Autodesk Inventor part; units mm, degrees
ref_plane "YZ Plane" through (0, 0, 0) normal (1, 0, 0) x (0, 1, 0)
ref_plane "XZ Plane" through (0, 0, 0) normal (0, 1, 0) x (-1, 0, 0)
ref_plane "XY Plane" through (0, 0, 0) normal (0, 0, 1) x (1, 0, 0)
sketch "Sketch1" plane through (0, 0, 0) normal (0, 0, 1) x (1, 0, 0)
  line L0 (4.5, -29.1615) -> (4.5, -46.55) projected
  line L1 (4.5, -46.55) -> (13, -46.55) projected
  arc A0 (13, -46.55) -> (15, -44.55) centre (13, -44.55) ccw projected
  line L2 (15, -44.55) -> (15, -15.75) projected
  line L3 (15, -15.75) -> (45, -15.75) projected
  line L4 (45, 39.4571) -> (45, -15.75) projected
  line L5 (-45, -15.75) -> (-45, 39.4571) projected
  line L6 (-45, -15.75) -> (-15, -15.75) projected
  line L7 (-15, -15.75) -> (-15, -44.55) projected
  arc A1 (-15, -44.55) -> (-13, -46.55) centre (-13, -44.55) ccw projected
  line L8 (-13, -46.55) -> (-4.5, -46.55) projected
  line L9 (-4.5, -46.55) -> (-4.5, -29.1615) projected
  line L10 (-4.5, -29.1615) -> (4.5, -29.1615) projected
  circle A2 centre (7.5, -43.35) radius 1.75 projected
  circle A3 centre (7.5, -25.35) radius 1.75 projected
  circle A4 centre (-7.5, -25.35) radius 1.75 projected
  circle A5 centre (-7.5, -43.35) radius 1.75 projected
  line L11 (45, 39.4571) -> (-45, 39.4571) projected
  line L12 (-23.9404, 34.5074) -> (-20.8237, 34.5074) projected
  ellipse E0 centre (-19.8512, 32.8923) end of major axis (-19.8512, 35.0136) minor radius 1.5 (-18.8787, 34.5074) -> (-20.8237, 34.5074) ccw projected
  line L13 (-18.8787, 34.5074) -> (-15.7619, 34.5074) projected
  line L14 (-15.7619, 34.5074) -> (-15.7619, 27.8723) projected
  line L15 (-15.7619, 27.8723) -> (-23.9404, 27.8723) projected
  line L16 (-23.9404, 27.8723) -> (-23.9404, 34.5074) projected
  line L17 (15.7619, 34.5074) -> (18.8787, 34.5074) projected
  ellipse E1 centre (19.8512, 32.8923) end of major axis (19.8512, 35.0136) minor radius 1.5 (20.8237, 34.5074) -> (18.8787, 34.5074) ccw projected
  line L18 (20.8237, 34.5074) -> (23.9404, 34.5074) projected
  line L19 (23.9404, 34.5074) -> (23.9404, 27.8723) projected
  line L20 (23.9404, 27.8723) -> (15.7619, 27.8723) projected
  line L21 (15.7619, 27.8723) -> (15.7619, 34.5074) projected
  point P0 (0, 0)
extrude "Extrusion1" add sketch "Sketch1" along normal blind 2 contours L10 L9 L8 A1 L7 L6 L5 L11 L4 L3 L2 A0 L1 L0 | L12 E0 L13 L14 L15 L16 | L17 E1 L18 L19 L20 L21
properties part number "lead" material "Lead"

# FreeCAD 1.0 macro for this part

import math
import FreeCAD as App
import Part
import Sketcher

doc = App.newDocument("Part")
body = doc.addObject("PartDesign::Body", "Body")

sketch1 = body.newObject("Sketcher::SketchObject", "Sketch")
sketch1.AttachmentSupport = (doc.getObject("XY_Plane"), [""])
sketch1.MapMode = "FlatFace"
sketch1.addGeometry(Part.LineSegment(App.Vector(-4.5, -29.2, 0), App.Vector(4.5, -29.2, 0)), False)
sketch1.addGeometry(Part.LineSegment(App.Vector(4.5, -29.2, 0), App.Vector(4.5, -46.5, 0)), False)
sketch1.addGeometry(Part.LineSegment(App.Vector(4.5, -46.5, 0), App.Vector(13, -46.5, 0)), False)
sketch1.addGeometry(Part.ArcOfCircle(Part.Circle(App.Vector(13, -44.5, 0), App.Vector(0, 0, 1), 2), math.radians(-90), math.radians(0)), False)
sketch1.addGeometry(Part.LineSegment(App.Vector(15, -44.5, 0), App.Vector(15, -15.8, 0)), False)
sketch1.addGeometry(Part.LineSegment(App.Vector(15, -15.8, 0), App.Vector(45, -15.8, 0)), False)
sketch1.addGeometry(Part.LineSegment(App.Vector(45, -15.8, 0), App.Vector(45, 39.5, 0)), False)
sketch1.addGeometry(Part.LineSegment(App.Vector(45, 39.5, 0), App.Vector(-45, 39.5, 0)), False)
sketch1.addGeometry(Part.LineSegment(App.Vector(-45, 39.5, 0), App.Vector(-45, -15.8, 0)), False)
sketch1.addGeometry(Part.LineSegment(App.Vector(-45, -15.8, 0), App.Vector(-15, -15.8, 0)), False)
sketch1.addGeometry(Part.LineSegment(App.Vector(-15, -15.8, 0), App.Vector(-15, -44.5, 0)), False)
sketch1.addGeometry(Part.ArcOfCircle(Part.Circle(App.Vector(-13, -44.5, 0), App.Vector(0, 0, 1), 2), math.radians(180), math.radians(270)), False)
sketch1.addGeometry(Part.LineSegment(App.Vector(-13, -46.5, 0), App.Vector(-4.5, -46.5, 0)), False)
sketch1.addGeometry(Part.LineSegment(App.Vector(-4.5, -46.5, 0), App.Vector(-4.5, -29.2, 0)), False)
sketch1.addGeometry(Part.Circle(App.Vector(-7.5, -43.4, 0), App.Vector(0, 0, 1), 1.8), False)
sketch1.addGeometry(Part.Circle(App.Vector(-7.5, -25.4, 0), App.Vector(0, 0, 1), 1.8), False)
sketch1.addGeometry(Part.Circle(App.Vector(7.5, -43.4, 0), App.Vector(0, 0, 1), 1.8), False)
sketch1.addGeometry(Part.Circle(App.Vector(7.5, -25.4, 0), App.Vector(0, 0, 1), 1.8), False)
sketch1.addConstraint(Sketcher.Constraint("Coincident", 0, 2, 1, 1))
sketch1.addConstraint(Sketcher.Constraint("Coincident", 1, 2, 2, 1))
sketch1.addConstraint(Sketcher.Constraint("Tangent", 2, 2, 3, 1))
sketch1.addConstraint(Sketcher.Constraint("Tangent", 3, 2, 4, 1))
sketch1.addConstraint(Sketcher.Constraint("Coincident", 4, 2, 5, 1))
sketch1.addConstraint(Sketcher.Constraint("Coincident", 5, 2, 6, 1))
sketch1.addConstraint(Sketcher.Constraint("Coincident", 6, 2, 7, 1))
sketch1.addConstraint(Sketcher.Constraint("Coincident", 7, 2, 8, 1))
sketch1.addConstraint(Sketcher.Constraint("Coincident", 8, 2, 9, 1))
sketch1.addConstraint(Sketcher.Constraint("Coincident", 9, 2, 10, 1))
sketch1.addConstraint(Sketcher.Constraint("Tangent", 10, 2, 11, 1))
sketch1.addConstraint(Sketcher.Constraint("Tangent", 11, 2, 12, 1))
sketch1.addConstraint(Sketcher.Constraint("Coincident", 12, 2, 13, 1))
sketch1.addConstraint(Sketcher.Constraint("Coincident", 13, 2, 0, 1))
sketch1.addConstraint(Sketcher.Constraint("Horizontal", 0))
sketch1.addConstraint(Sketcher.Constraint("Vertical", 1))
sketch1.addConstraint(Sketcher.Constraint("Horizontal", 2))
sketch1.addConstraint(Sketcher.Constraint("Vertical", 4))
sketch1.addConstraint(Sketcher.Constraint("Horizontal", 5))
sketch1.addConstraint(Sketcher.Constraint("Vertical", 6))
sketch1.addConstraint(Sketcher.Constraint("Horizontal", 7))
sketch1.addConstraint(Sketcher.Constraint("Vertical", 8))
sketch1.addConstraint(Sketcher.Constraint("Horizontal", 9))
sketch1.addConstraint(Sketcher.Constraint("Vertical", 10))
sketch1.addConstraint(Sketcher.Constraint("Horizontal", 12))
sketch1.addConstraint(Sketcher.Constraint("Vertical", 13))
sketch1.addConstraint(Sketcher.Constraint("Equal", 3, 11))
sketch1.addConstraint(Sketcher.Constraint("Equal", 14, 15))
sketch1.addConstraint(Sketcher.Constraint("Equal", 15, 16))
sketch1.addConstraint(Sketcher.Constraint("Equal", 16, 17))
sketch1.addConstraint(Sketcher.Constraint("Symmetric", 3, 3, 11, 3, -2))
sketch1.addConstraint(Sketcher.Constraint("Symmetric", 14, 3, 16, 3, -2))
sketch1.addConstraint(Sketcher.Constraint("Symmetric", 15, 3, 17, 3, -2))
sketch1.addConstraint(Sketcher.Constraint("Symmetric", 5, 2, 8, 2, -2))
sketch1.addConstraint(Sketcher.Constraint("Vertical", 14, 3, 15, 3))
sketch1.addConstraint(Sketcher.Constraint("Equal", 2, 12))
sketch1.addConstraint(Sketcher.Constraint("Radius", 3, 2.0))
sketch1.addConstraint(Sketcher.Constraint("Diameter", 14, 3.5))
sketch1.addConstraint(Sketcher.Constraint("DistanceX", 0, 1, 0, 2, 9.0))
sketch1.addConstraint(Sketcher.Constraint("DistanceX", 5, 1, 5, 2, 30.0))
sketch1.addConstraint(Sketcher.Constraint("DistanceX", 7, 2, 7, 1, 90.0))
sketch1.addConstraint(Sketcher.Constraint("DistanceY", 4, 1, 4, 2, 28.8))
sketch1.addConstraint(Sketcher.Constraint("DistanceY", 14, 3, 15, 3, 18.0))
sketch1.addConstraint(Sketcher.Constraint("DistanceX", 14, 3, 16, 3, 15.0))
sketch1.addConstraint(Sketcher.Constraint("DistanceY", 11, 3, 14, 3, 1.2))
sketch1.addConstraint(Sketcher.Constraint("DistanceY", 6, 1, 6, 2, 55.207))
sketch1.addConstraint(Sketcher.Constraint("DistanceY", 3, 3, -1, 1, 44.55))
sketch1.addConstraint(Sketcher.Constraint("DistanceY", 1, 2, 1, 1, 17.3885))
pad1 = body.newObject("PartDesign::Pad", "Pad")
pad1.Profile = sketch1
pad1.Length = 2

doc.recompute()
